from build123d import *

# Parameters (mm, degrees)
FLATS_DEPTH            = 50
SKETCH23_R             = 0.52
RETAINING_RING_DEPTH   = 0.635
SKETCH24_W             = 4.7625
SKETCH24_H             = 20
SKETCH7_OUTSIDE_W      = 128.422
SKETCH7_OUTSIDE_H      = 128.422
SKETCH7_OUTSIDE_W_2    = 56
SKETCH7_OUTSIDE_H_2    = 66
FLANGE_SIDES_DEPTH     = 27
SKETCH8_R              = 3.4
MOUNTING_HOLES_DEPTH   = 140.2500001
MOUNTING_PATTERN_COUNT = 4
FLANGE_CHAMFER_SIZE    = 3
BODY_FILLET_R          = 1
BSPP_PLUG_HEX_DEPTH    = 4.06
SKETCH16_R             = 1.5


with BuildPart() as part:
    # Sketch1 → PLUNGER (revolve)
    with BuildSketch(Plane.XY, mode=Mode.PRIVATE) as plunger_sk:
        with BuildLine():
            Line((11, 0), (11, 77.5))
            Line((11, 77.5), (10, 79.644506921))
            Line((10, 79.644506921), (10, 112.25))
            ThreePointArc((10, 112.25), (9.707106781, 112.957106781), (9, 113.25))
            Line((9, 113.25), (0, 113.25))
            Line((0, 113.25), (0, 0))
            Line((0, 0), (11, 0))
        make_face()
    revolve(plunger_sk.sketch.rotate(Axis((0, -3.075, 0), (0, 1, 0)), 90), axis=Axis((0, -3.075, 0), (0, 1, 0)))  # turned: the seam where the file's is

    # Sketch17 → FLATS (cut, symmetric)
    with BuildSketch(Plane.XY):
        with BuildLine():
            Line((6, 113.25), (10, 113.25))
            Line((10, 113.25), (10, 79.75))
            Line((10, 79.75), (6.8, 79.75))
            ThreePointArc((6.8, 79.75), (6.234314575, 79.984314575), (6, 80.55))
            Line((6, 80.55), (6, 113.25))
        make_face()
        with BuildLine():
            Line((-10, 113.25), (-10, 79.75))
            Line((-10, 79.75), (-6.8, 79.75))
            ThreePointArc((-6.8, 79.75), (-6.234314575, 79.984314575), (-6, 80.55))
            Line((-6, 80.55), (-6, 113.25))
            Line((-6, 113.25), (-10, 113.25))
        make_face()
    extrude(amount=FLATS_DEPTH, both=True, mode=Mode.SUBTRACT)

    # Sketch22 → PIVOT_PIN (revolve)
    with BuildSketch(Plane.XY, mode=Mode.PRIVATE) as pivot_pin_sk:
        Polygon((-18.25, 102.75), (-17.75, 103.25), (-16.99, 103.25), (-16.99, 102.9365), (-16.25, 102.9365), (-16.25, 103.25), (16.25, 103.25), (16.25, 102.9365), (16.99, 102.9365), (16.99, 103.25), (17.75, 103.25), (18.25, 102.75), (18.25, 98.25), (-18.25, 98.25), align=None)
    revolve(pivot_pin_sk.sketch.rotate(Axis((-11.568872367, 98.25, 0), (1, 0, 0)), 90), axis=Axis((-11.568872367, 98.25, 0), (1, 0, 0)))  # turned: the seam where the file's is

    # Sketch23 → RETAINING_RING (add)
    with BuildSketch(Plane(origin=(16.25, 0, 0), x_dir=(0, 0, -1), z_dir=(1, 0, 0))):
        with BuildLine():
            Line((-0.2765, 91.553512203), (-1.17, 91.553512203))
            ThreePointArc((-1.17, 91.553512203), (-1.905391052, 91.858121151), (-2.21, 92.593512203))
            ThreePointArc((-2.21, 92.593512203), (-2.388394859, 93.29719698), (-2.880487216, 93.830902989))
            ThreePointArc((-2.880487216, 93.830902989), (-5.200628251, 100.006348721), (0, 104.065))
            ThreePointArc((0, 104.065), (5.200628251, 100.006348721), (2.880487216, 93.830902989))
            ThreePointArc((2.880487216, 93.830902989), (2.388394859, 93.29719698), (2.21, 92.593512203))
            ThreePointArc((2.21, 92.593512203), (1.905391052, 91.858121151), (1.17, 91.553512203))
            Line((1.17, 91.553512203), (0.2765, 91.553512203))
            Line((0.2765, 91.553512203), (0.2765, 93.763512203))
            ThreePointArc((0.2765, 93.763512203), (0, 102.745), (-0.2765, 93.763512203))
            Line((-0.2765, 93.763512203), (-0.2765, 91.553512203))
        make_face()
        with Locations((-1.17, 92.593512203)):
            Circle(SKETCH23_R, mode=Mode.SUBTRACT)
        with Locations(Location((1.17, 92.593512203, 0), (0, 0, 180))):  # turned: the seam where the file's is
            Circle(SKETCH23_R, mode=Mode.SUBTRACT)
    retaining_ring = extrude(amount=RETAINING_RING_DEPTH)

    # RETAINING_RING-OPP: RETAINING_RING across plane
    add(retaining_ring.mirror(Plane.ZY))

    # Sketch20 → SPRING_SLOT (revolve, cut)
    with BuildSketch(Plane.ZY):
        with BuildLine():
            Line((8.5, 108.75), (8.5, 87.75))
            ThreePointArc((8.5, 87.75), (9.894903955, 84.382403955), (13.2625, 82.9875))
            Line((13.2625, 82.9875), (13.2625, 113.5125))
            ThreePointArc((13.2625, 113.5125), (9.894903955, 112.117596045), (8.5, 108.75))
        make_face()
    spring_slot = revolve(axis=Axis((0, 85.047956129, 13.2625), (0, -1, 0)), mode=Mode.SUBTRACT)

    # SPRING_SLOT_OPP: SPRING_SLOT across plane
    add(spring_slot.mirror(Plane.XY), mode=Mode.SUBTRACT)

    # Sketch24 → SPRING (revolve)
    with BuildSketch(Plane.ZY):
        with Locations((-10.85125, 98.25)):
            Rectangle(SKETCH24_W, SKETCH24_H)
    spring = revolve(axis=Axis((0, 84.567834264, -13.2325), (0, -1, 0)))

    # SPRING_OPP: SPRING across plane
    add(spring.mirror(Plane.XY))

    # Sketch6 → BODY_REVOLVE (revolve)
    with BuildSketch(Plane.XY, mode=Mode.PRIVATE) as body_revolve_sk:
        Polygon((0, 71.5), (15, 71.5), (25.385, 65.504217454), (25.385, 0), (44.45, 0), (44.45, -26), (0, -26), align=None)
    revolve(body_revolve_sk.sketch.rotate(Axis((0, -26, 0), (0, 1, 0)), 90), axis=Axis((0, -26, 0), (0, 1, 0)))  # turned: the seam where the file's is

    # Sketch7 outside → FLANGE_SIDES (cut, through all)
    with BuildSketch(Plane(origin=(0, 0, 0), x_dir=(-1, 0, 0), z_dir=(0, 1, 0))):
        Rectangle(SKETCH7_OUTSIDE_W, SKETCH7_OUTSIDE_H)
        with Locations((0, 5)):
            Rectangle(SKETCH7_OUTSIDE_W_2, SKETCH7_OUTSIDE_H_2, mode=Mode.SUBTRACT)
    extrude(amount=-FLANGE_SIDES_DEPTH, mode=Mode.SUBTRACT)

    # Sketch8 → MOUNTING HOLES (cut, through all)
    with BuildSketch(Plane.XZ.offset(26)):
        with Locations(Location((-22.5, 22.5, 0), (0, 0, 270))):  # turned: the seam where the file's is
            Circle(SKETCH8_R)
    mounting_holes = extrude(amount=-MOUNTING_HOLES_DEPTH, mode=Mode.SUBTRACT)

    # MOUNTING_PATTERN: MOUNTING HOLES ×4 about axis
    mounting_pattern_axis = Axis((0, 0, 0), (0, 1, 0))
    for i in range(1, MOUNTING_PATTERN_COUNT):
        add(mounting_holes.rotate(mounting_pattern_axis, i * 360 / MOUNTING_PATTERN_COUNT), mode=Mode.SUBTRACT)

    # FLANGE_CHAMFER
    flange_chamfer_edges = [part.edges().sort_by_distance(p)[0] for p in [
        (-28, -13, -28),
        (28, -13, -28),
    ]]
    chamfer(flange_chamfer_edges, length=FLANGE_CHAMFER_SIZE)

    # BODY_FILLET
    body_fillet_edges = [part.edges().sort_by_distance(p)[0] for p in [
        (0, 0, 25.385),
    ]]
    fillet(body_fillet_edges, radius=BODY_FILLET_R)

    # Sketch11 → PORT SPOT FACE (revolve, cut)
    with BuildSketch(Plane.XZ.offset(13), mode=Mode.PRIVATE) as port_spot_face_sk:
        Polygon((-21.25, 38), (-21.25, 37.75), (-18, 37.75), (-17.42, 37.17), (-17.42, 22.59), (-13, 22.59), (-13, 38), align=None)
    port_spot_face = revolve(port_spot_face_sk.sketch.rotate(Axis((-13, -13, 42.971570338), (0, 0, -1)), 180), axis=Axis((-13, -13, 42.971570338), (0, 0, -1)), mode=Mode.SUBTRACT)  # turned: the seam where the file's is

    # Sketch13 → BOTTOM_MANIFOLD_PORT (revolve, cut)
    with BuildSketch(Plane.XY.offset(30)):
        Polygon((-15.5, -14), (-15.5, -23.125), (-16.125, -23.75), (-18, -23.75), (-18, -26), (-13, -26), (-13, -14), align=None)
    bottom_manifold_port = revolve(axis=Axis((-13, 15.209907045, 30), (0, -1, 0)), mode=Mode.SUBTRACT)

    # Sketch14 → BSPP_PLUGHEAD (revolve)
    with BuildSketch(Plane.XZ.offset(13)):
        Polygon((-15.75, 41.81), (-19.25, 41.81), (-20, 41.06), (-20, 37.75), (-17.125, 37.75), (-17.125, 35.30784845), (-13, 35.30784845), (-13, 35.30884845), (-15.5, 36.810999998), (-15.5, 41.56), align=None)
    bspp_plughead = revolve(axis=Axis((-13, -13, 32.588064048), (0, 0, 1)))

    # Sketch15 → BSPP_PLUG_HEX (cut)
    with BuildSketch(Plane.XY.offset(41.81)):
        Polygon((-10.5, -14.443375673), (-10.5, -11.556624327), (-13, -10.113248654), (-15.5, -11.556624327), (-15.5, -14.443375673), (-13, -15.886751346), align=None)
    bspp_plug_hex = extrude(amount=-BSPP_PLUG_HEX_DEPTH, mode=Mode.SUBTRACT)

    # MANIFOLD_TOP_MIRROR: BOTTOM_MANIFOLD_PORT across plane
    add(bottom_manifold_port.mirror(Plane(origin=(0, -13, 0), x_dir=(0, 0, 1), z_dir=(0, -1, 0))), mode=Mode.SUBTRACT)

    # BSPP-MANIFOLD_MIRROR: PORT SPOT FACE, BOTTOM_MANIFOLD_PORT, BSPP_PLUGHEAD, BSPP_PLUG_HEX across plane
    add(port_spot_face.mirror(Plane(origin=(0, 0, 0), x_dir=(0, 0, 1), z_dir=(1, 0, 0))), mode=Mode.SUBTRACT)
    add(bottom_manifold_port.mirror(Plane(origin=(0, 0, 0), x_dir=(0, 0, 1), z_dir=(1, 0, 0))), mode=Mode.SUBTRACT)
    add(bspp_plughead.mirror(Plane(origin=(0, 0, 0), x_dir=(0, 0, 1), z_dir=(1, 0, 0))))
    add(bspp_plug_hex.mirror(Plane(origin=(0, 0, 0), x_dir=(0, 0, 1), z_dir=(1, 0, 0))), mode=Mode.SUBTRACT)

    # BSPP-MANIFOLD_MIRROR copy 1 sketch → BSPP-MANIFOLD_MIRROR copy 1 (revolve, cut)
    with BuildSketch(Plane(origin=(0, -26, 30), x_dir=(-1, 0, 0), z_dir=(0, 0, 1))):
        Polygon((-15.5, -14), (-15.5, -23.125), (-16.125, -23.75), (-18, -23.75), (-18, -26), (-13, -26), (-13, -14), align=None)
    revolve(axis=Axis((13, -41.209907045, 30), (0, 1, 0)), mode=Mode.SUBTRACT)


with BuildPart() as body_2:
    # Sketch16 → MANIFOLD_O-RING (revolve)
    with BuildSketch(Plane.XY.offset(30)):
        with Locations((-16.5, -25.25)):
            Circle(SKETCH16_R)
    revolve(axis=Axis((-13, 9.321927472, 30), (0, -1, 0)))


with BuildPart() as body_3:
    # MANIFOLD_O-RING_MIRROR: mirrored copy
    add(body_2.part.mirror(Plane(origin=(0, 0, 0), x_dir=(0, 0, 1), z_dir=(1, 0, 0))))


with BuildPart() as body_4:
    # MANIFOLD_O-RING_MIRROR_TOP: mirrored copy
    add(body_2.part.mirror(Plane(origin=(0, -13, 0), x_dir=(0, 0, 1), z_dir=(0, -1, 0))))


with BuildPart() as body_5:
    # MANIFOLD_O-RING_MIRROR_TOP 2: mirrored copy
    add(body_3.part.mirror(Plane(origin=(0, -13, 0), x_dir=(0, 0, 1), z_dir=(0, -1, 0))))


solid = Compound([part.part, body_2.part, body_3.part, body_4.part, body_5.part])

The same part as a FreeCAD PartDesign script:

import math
import FreeCAD as App
import Part
import Sketcher
from FreeCAD import Vector
Q = App.Units.Quantity


def edges_at(feature, points):
    """Names of the edges that pass closest to the given points."""
    edges = feature.Shape.Edges
    near = lambda p: min(range(len(edges)), key=lambda i: edges[i].distToShape(Part.Vertex(*p))[0])
    return sorted({f"Edge{near(p) + 1}" for p in points})

doc = App.newDocument("Part")
body = doc.addObject("PartDesign::Body", "Body")

# Sketch on XY plane
sketch1 = doc.addObject("Sketcher::SketchObject", "Sketch")
body.addObject(sketch1)
sketch1.AttachmentSupport = (doc.XY_Plane, [""])
sketch1.MapMode = "FlatFace"
sketch1.addGeometry([
    Part.LineSegment(Vector(11, 0, 0), Vector(11, 77.5, 0)),  # 0
    Part.LineSegment(Vector(11, 77.5, 0), Vector(10, 79.644507, 0)),  # 1
    Part.LineSegment(Vector(10, 79.644507, 0), Vector(10, 112.25, 0)),  # 2
    Part.ArcOfCircle(Part.Circle(Vector(9, 112.25, 0), Vector(0, 0, 1), 1), math.radians(0), math.radians(90)),  # 3
    Part.LineSegment(Vector(9, 113.25, 0), Vector(0, 113.25, 0)),  # 4
    Part.LineSegment(Vector(0, 113.25, 0), Vector(0, 0, 0)),  # 5
    Part.LineSegment(Vector(0, 0, 0), Vector(11, 0, 0)),  # 6
], False)
sketch1.addConstraint([
    Sketcher.Constraint("Coincident", 0, 2, 1, 1),
    Sketcher.Constraint("Coincident", 1, 2, 2, 1),
    Sketcher.Constraint("Tangent", 2, 2, 3, 1),
    Sketcher.Constraint("Tangent", 3, 2, 4, 1),
    Sketcher.Constraint("Coincident", 4, 2, 5, 1),
    Sketcher.Constraint("Coincident", 5, 2, 6, 1),
    Sketcher.Constraint("Coincident", 6, 2, 0, 1),
    Sketcher.Constraint("Vertical", 0),
    Sketcher.Constraint("Vertical", 2),
    Sketcher.Constraint("Horizontal", 4),
    Sketcher.Constraint("Vertical", 5),
    Sketcher.Constraint("Horizontal", 6),
    Sketcher.Constraint("Coincident", 5, 2, -1, 1),
    Sketcher.Constraint("Radius", 3, 1.0),
    Sketcher.Constraint("DistanceX", 4, 2, 4, 1, 9.0),
    Sketcher.Constraint("DistanceX", 6, 1, 6, 2, 11.0),
    Sketcher.Constraint("Angle", 1, Q("115 deg")),
    Sketcher.Constraint("DistanceY", 0, 1, 0, 2, 77.5),
    Sketcher.Constraint("DistanceY", 5, 2, 5, 1, 113.25),
])
revolution = doc.addObject("PartDesign::Revolution", "Revolution")
body.addObject(revolution)
revolution.Profile = sketch1
revolution.ReferenceAxis = (sketch1, ["V_Axis"])
revolution.Angle = 360

# Sketch on XY plane
sketch2 = doc.addObject("Sketcher::SketchObject", "Sketch001")
body.addObject(sketch2)
sketch2.AttachmentSupport = (doc.XY_Plane, [""])
sketch2.MapMode = "FlatFace"
sketch2.addGeometry([
    Part.LineSegment(Vector(10, 113.25, 0), Vector(6, 113.25, 0)),  # 0
    Part.LineSegment(Vector(6, 113.25, 0), Vector(6, 80.55, 0)),  # 1
    Part.ArcOfCircle(Part.Circle(Vector(6.8, 80.55, 0), Vector(0, 0, 1), 0.8), math.radians(180), math.radians(270)),  # 2
    Part.LineSegment(Vector(6.8, 79.75, 0), Vector(10, 79.75, 0)),  # 3
    Part.LineSegment(Vector(10, 79.75, 0), Vector(10, 113.25, 0)),  # 4
    Part.LineSegment(Vector(-10, 113.25, 0), Vector(-10, 79.75, 0)),  # 5
    Part.LineSegment(Vector(-10, 79.75, 0), Vector(-6.8, 79.75, 0)),  # 6
    Part.ArcOfCircle(Part.Circle(Vector(-6.8, 80.55, 0), Vector(0, 0, 1), 0.8), math.radians(-90), math.radians(0)),  # 7
    Part.LineSegment(Vector(-6, 80.55, 0), Vector(-6, 113.25, 0)),  # 8
    Part.LineSegment(Vector(-6, 113.25, 0), Vector(-10, 113.25, 0)),  # 9
], False)
sketch2.addConstraint([
    Sketcher.Constraint("Coincident", 0, 2, 1, 1),
    Sketcher.Constraint("Tangent", 1, 2, 2, 1),
    Sketcher.Constraint("Tangent", 2, 2, 3, 1),
    Sketcher.Constraint("Coincident", 3, 2, 4, 1),
    Sketcher.Constraint("Coincident", 4, 2, 0, 1),
    Sketcher.Constraint("Coincident", 5, 2, 6, 1),
    Sketcher.Constraint("Tangent", 6, 2, 7, 1),
    Sketcher.Constraint("Tangent", 7, 2, 8, 1),
    Sketcher.Constraint("Coincident", 8, 2, 9, 1),
    Sketcher.Constraint("Coincident", 9, 2, 5, 1),
    Sketcher.Constraint("Horizontal", 0),
    Sketcher.Constraint("Vertical", 1),
    Sketcher.Constraint("Horizontal", 3),
    Sketcher.Constraint("Vertical", 4),
    Sketcher.Constraint("Vertical", 5),
    Sketcher.Constraint("Horizontal", 6),
    Sketcher.Constraint("Vertical", 8),
    Sketcher.Constraint("Horizontal", 9),
    Sketcher.Constraint("Equal", 2, 7),
    Sketcher.Constraint("Symmetric", 2, 3, 7, 3, -2),
    Sketcher.Constraint("Symmetric", 4, 2, 9, 2, -2),
    Sketcher.Constraint("Radius", 2, 0.8),
    Sketcher.Constraint("DistanceX", 0, 2, 0, 1, 4.0),
    Sketcher.Constraint("DistanceY", 1, 2, 1, 1, 32.7),
    Sketcher.Constraint("DistanceX", -1, 1, 0, 2, 6.0),
    Sketcher.Constraint("DistanceY", -1, 1, 2, 3, 80.55),
])
pocket1 = doc.addObject("PartDesign::Pocket", "Pocket")
body.addObject(pocket1)
pocket1.Profile = sketch2
pocket1.Length = 100
pocket1.Midplane = True

# Sketch on XY plane
sketch3 = doc.addObject("Sketcher::SketchObject", "Sketch002")
body.addObject(sketch3)
sketch3.AttachmentSupport = (doc.XY_Plane, [""])
sketch3.MapMode = "FlatFace"
sketch3.addGeometry([
    Part.LineSegment(Vector(-17.75, 103.25, 0), Vector(-18.25, 102.75, 0)),  # 0
    Part.LineSegment(Vector(-18.25, 102.75, 0), Vector(-18.25, 98.25, 0)),  # 1
    Part.LineSegment(Vector(-18.25, 98.25, 0), Vector(18.25, 98.25, 0)),  # 2
    Part.LineSegment(Vector(18.25, 98.25, 0), Vector(18.25, 102.75, 0)),  # 3
    Part.LineSegment(Vector(18.25, 102.75, 0), Vector(17.75, 103.25, 0)),  # 4
    Part.LineSegment(Vector(17.75, 103.25, 0), Vector(16.99, 103.25, 0)),  # 5
    Part.LineSegment(Vector(16.99, 103.25, 0), Vector(16.99, 102.9365, 0)),  # 6
    Part.LineSegment(Vector(16.99, 102.9365, 0), Vector(16.25, 102.9365, 0)),  # 7
    Part.LineSegment(Vector(16.25, 102.9365, 0), Vector(16.25, 103.25, 0)),  # 8
    Part.LineSegment(Vector(16.25, 103.25, 0), Vector(-16.25, 103.25, 0)),  # 9
    Part.LineSegment(Vector(-16.25, 103.25, 0), Vector(-16.25, 102.9365, 0)),  # 10
    Part.LineSegment(Vector(-16.25, 102.9365, 0), Vector(-16.99, 102.9365, 0)),  # 11
    Part.LineSegment(Vector(-16.99, 102.9365, 0), Vector(-16.99, 103.25, 0)),  # 12
    Part.LineSegment(Vector(-16.99, 103.25, 0), Vector(-17.75, 103.25, 0)),  # 13
], False)
sketch3.addGeometry(Part.LineSegment(Vector(-18.25, 98.25, 0), Vector(18.25, 98.25, 0)), True)  # axis
sketch3.addConstraint([
    Sketcher.Constraint("Coincident", 0, 2, 1, 1),
    Sketcher.Constraint("Coincident", 1, 2, 2, 1),
    Sketcher.Constraint("Coincident", 2, 2, 3, 1),
    Sketcher.Constraint("Coincident", 3, 2, 4, 1),
    Sketcher.Constraint("Coincident", 4, 2, 5, 1),
    Sketcher.Constraint("Coincident", 5, 2, 6, 1),
    Sketcher.Constraint("Coincident", 6, 2, 7, 1),
    Sketcher.Constraint("Coincident", 7, 2, 8, 1),
    Sketcher.Constraint("Coincident", 8, 2, 9, 1),
    Sketcher.Constraint("Coincident", 9, 2, 10, 1),
    Sketcher.Constraint("Coincident", 10, 2, 11, 1),
    Sketcher.Constraint("Coincident", 11, 2, 12, 1),
    Sketcher.Constraint("Coincident", 12, 2, 13, 1),
    Sketcher.Constraint("Coincident", 13, 2, 0, 1),
    Sketcher.Constraint("Vertical", 1),
    Sketcher.Constraint("Horizontal", 2),
    Sketcher.Constraint("Vertical", 3),
    Sketcher.Constraint("Horizontal", 5),
    Sketcher.Constraint("Vertical", 6),
    Sketcher.Constraint("Horizontal", 7),
    Sketcher.Constraint("Vertical", 8),
    Sketcher.Constraint("Horizontal", 9),
    Sketcher.Constraint("Vertical", 10),
    Sketcher.Constraint("Horizontal", 11),
    Sketcher.Constraint("Vertical", 12),
    Sketcher.Constraint("Horizontal", 13),
    Sketcher.Constraint("Horizontal", 14),
    Sketcher.Constraint("Coincident", 14, 1, 1, 2),
    Sketcher.Constraint("Symmetric", 0, 2, 3, 2, -2),
    Sketcher.Constraint("Symmetric", 7, 2, 10, 2, -2),
    Sketcher.Constraint("Symmetric", 5, 2, 12, 2, -2),
    Sketcher.Constraint("Perpendicular", 0, 4),
    Sketcher.Constraint("Horizontal", 5, 2, 8, 2),
    Sketcher.Constraint("Vertical", 3, 2, 14, 2),
    Sketcher.Constraint("Equal", 5, 13),
    Sketcher.Constraint("DistanceX", 2, 1, 2, 2, 36.5),
    Sketcher.Constraint("DistanceX", 9, 2, 9, 1, 32.5),
    Sketcher.Constraint("DistanceY", 1, 2, 1, 1, 4.5),
    Sketcher.Constraint("DistanceY", 2, 2, 4, 2, 5.0),
    Sketcher.Constraint("DistanceX", 5, 2, 5, 1, 0.76),
    Sketcher.Constraint("DistanceY", -1, 1, 0, 2, 102.75),
    Sketcher.Constraint("DistanceY", 6, 2, 6, 1, 0.3135),
])
revolution2 = doc.addObject("PartDesign::Revolution", "Revolution001")
body.addObject(revolution2)
revolution2.Profile = sketch3
revolution2.ReferenceAxis = (sketch3, ["Axis0"])
revolution2.Angle = 360

# Sketch on YZ plane
sketch4 = doc.addObject("Sketcher::SketchObject", "Sketch003")
body.addObject(sketch4)
sketch4.AttachmentSupport = (doc.YZ_Plane, [""])
sketch4.MapMode = "FlatFace"
sketch4.AttachmentOffset = App.Placement(Vector(0, 0, 16.25), App.Rotation())
sketch4.addGeometry([
    Part.LineSegment(Vector(91.553512, 1.17, 0), Vector(91.553512, 0.2765, 0)),  # 0
    Part.LineSegment(Vector(91.553512, 0.2765, 0), Vector(93.763512, 0.2765, 0)),  # 1
    Part.ArcOfCircle(Part.Circle(Vector(98.25, 0, 0), Vector(0, 0, 1), 4.495), math.radians(-176.47335), math.radians(176.47335)),  # 2
    Part.LineSegment(Vector(93.763512, -0.2765, 0), Vector(91.553512, -0.2765, 0)),  # 3
    Part.LineSegment(Vector(91.553512, -0.2765, 0), Vector(91.553512, -1.17, 0)),  # 4
    Part.ArcOfCircle(Part.Circle(Vector(92.593512, -1.17, 0), Vector(0, 0, 1), 1.04), math.radians(-180), math.radians(-90)),  # 5
    Part.ArcOfCircle(Part.Circle(Vector(92.593512, -3.687052, 0), Vector(0, 0, 1), 1.477052), math.radians(33.097399), math.radians(90)),  # 6
    Part.ArcOfCircle(Part.Circle(Vector(98.497224, 0.161147, 0), Vector(0, 0, 1), 5.570107), math.radians(-146.902601), math.radians(-1.657842)),  # 7
    Part.ArcOfCircle(Part.Circle(Vector(98.497224, -0.161147, 0), Vector(0, 0, 1), 5.570107), math.radians(1.657842), math.radians(146.902601)),  # 8
    Part.ArcOfCircle(Part.Circle(Vector(92.593512, 3.687052, 0), Vector(0, 0, 1), 1.477052), math.radians(-90), math.radians(-33.097399)),  # 9
    Part.ArcOfCircle(Part.Circle(Vector(92.593512, 1.17, 0), Vector(0, 0, 1), 1.04), math.radians(90), math.radians(180)),  # 10
    Part.Circle(Vector(92.593512, -1.17, 0), Vector(0, 0, 1), 0.52),  # 11
    Part.Circle(Vector(92.593512, 1.17, 0), Vector(0, 0, 1), 0.52),  # 12
], False)
sketch4.addConstraint([
    Sketcher.Constraint("Coincident", 0, 2, 1, 1),
    Sketcher.Constraint("Coincident", 1, 2, 2, 2),
    Sketcher.Constraint("Coincident", 2, 1, 3, 1),
    Sketcher.Constraint("Coincident", 3, 2, 4, 1),
    Sketcher.Constraint("Tangent", 4, 2, 5, 1),
    Sketcher.Constraint("Tangent", 5, 2, 6, 2),
    Sketcher.Constraint("Tangent", 6, 1, 7, 1),
    Sketcher.Constraint("Coincident", 7, 2, 8, 1),
    Sketcher.Constraint("Tangent", 8, 2, 9, 2),
    Sketcher.Constraint("Tangent", 9, 1, 10, 1),
    Sketcher.Constraint("Tangent", 10, 2, 0, 1),
    Sketcher.Constraint("Vertical", 0),
    Sketcher.Constraint("Horizontal", 1),
    Sketcher.Constraint("Horizontal", 3),
    Sketcher.Constraint("Vertical", 4),
    Sketcher.Constraint("Coincident", 11, 3, 5, 3),
    Sketcher.Constraint("Coincident", 12, 3, 10, 3),
    Sketcher.Constraint("Equal", 7, 8),
    Sketcher.Constraint("Equal", 6, 9),
    Sketcher.Constraint("Equal", 5, 10),
    Sketcher.Constraint("Equal", 11, 12),
    Sketcher.Constraint("Symmetric", 7, 3, 8, 3, -1),
    Sketcher.Constraint("Symmetric", 5, 3, 10, 3, -1),
    Sketcher.Constraint("Symmetric", 1, 2, 2, 1, -1),
    Sketcher.Constraint("Vertical", 5, 3, 6, 3),
    Sketcher.Constraint("Diameter", 11, 1.04),
    Sketcher.Constraint("Radius", 5, 1.04),
    Sketcher.Constraint("Radius", 2, 4.495),
    Sketcher.Constraint("DistanceX", 1, 1, 1, 2, 2.21),
    Sketcher.Constraint("DistanceX", -1, 1, 2, 3, 98.25),
    Sketcher.Constraint("DistanceY", 5, 3, -1, 1, 1.17),
    Sketcher.Constraint("DistanceY", 0, 2, 0, 1, 0.8935),
    Sketcher.Constraint("DistanceX", -1, 1, 7, 2, 104.065),
    Sketcher.Constraint("Radius", 6, 1.477052),
    Sketcher.Constraint("Radius", 7, 5.570107),
])
pad1 = doc.addObject("PartDesign::Pad", "Pad")
body.addObject(pad1)
pad1.Profile = sketch4
pad1.Length = 0.635
doc.recompute()

mirrored = doc.addObject("PartDesign::Mirrored", "Mirrored")
body.addObject(mirrored)
mirrored.Originals = [pad1]
mirrored.MirrorPlane = (doc.YZ_Plane, [""])
body.Tip = mirrored

# Sketch on YZ plane
sketch5 = doc.addObject("Sketcher::SketchObject", "Sketch004")
body.addObject(sketch5)
sketch5.AttachmentSupport = (doc.YZ_Plane, [""])
sketch5.MapMode = "FlatFace"
sketch5.addGeometry([
    Part.LineSegment(Vector(108.75, 8.5, 0), Vector(87.75, 8.5, 0)),
    Part.ArcOfCircle(Part.Circle(Vector(87.75, 13.2625, 0), Vector(0, 0, 1), 4.7625), math.radians(-180), math.radians(-90)),
    Part.LineSegment(Vector(82.9875, 13.2625, 0), Vector(113.5125, 13.2625, 0)),
    Part.ArcOfCircle(Part.Circle(Vector(108.75, 13.2625, 0), Vector(0, 0, 1), 4.7625), math.radians(-90), math.radians(0)),
], False)
sketch5.addGeometry(Part.LineSegment(Vector(113.5125, 13.2625, 0), Vector(82.9875, 13.2625, 0)), True)  # axis
sketch5.addConstraint([
    Sketcher.Constraint("Tangent", 0, 2, 1, 2),
    Sketcher.Constraint("Coincident", 1, 1, 2, 1),
    Sketcher.Constraint("Coincident", 2, 2, 3, 2),
    Sketcher.Constraint("Tangent", 3, 1, 0, 1),
    Sketcher.Constraint("Horizontal", 0),
    Sketcher.Constraint("Horizontal", 2),
    Sketcher.Constraint("Horizontal", 4),
    Sketcher.Constraint("Coincident", 4, 1, 2, 2),
    Sketcher.Constraint("Equal", 1, 3),
    Sketcher.Constraint("Horizontal", 3, 3, 1, 1),
    Sketcher.Constraint("Equal", 2, 4),
    Sketcher.Constraint("DistanceX", 0, 2, 0, 1, 21.0),
    Sketcher.Constraint("DistanceY", -1, 1, 0, 2, 8.5),
    Sketcher.Constraint("Radius", 1, 4.7625),
    Sketcher.Constraint("DistanceX", -1, 1, 1, 3, 87.75),
])
groove = doc.addObject("PartDesign::Groove", "Groove")
body.addObject(groove)
groove.Profile = sketch5
groove.ReferenceAxis = (sketch5, ["Axis0"])
groove.Angle = 360
doc.recompute()

mirrored2 = doc.addObject("PartDesign::Mirrored", "Mirrored001")
body.addObject(mirrored2)
mirrored2.Originals = [groove]
mirrored2.MirrorPlane = (doc.XY_Plane, [""])
body.Tip = mirrored2

# Sketch on YZ plane
sketch6 = doc.addObject("Sketcher::SketchObject", "Sketch005")
body.addObject(sketch6)
sketch6.AttachmentSupport = (doc.YZ_Plane, [""])
sketch6.MapMode = "FlatFace"
sketch6.addGeometry([
    Part.LineSegment(Vector(108.25, -13.2325, 0), Vector(88.25, -13.2325, 0)),
    Part.LineSegment(Vector(88.25, -13.2325, 0), Vector(88.25, -8.47, 0)),
    Part.LineSegment(Vector(88.25, -8.47, 0), Vector(108.25, -8.47, 0)),
    Part.LineSegment(Vector(108.25, -8.47, 0), Vector(108.25, -13.2325, 0)),
], False)
sketch6.addGeometry(Part.LineSegment(Vector(108.25, -13.2325, 0), Vector(88.25, -13.2325, 0)), True)  # axis
sketch6.addConstraint([
    Sketcher.Constraint("Coincident", 0, 2, 1, 1),
    Sketcher.Constraint("Coincident", 1, 2, 2, 1),
    Sketcher.Constraint("Coincident", 2, 2, 3, 1),
    Sketcher.Constraint("Coincident", 3, 2, 0, 1),
    Sketcher.Constraint("Horizontal", 0),
    Sketcher.Constraint("Vertical", 1),
    Sketcher.Constraint("Horizontal", 2),
    Sketcher.Constraint("Vertical", 3),
    Sketcher.Constraint("Horizontal", 4),
    Sketcher.Constraint("Coincident", 4, 1, 3, 2),
    Sketcher.Constraint("Vertical", 1, 2, 4, 2),
    Sketcher.Constraint("DistanceX", 0, 2, 0, 1, 20.0),
    Sketcher.Constraint("DistanceX", -1, 1, 0, 2, 88.25),
    Sketcher.Constraint("DistanceY", 1, 2, -1, 1, 8.47),
    Sketcher.Constraint("DistanceY", 1, 1, 1, 2, 4.7625),
])
revolution3 = doc.addObject("PartDesign::Revolution", "Revolution002")
body.addObject(revolution3)
revolution3.Profile = sketch6
revolution3.ReferenceAxis = (sketch6, ["Axis0"])
revolution3.Angle = 360
doc.recompute()

mirrored3 = doc.addObject("PartDesign::Mirrored", "Mirrored002")
body.addObject(mirrored3)
mirrored3.Originals = [revolution3]
mirrored3.MirrorPlane = (doc.XY_Plane, [""])
body.Tip = mirrored3

# Sketch on XY plane
sketch7 = doc.addObject("Sketcher::SketchObject", "Sketch006")
body.addObject(sketch7)
sketch7.AttachmentSupport = (doc.XY_Plane, [""])
sketch7.MapMode = "FlatFace"
sketch7.addGeometry([
    Part.LineSegment(Vector(15, 71.5, 0), Vector(0, 71.5, 0)),  # 0
    Part.LineSegment(Vector(0, 71.5, 0), Vector(0, -26, 0)),  # 1
    Part.LineSegment(Vector(0, -26, 0), Vector(44.45, -26, 0)),  # 2
    Part.LineSegment(Vector(44.45, -26, 0), Vector(44.45, 0, 0)),  # 3
    Part.LineSegment(Vector(44.45, 0, 0), Vector(25.385, 0, 0)),  # 4
    Part.LineSegment(Vector(25.385, 0, 0), Vector(25.385, 65.504217, 0)),  # 5
    Part.LineSegment(Vector(25.385, 65.504217, 0), Vector(15, 71.5, 0)),  # 6
], False)
sketch7.addConstraint([
    Sketcher.Constraint("Coincident", 0, 2, 1, 1),
    Sketcher.Constraint("Coincident", 1, 2, 2, 1),
    Sketcher.Constraint("Coincident", 2, 2, 3, 1),
    Sketcher.Constraint("Coincident", 3, 2, 4, 1),
    Sketcher.Constraint("Coincident", 4, 2, 5, 1),
    Sketcher.Constraint("Coincident", 5, 2, 6, 1),
    Sketcher.Constraint("Coincident", 6, 2, 0, 1),
    Sketcher.Constraint("Horizontal", 0),
    Sketcher.Constraint("Vertical", 1),
    Sketcher.Constraint("Horizontal", 2),
    Sketcher.Constraint("Vertical", 3),
    Sketcher.Constraint("Horizontal", 4),
    Sketcher.Constraint("Vertical", 5),
    Sketcher.Constraint("PointOnObject", 0, 2, -2),
    Sketcher.Constraint("PointOnObject", 3, 2, -1),
    Sketcher.Constraint("DistanceX", 0, 2, 0, 1, 15.0),
    Sketcher.Constraint("DistanceY", 3, 1, 3, 2, 26.0),
    Sketcher.Constraint("Angle", 6, Q("150 deg")),
    Sketcher.Constraint("DistanceY", 1, 2, 1, 1, 97.5),
    Sketcher.Constraint("DistanceX", 2, 1, 2, 2, 44.45),
    Sketcher.Constraint("DistanceX", 4, 2, 4, 1, 19.065),
])
revolution4 = doc.addObject("PartDesign::Revolution", "Revolution003")
body.addObject(revolution4)
revolution4.Profile = sketch7
revolution4.ReferenceAxis = (sketch7, ["V_Axis"])
revolution4.Angle = 360

# Sketch on XZ plane
sketch8 = doc.addObject("Sketcher::SketchObject", "Sketch007")
body.addObject(sketch8)
sketch8.AttachmentSupport = (doc.XZ_Plane, [""])
sketch8.MapMode = "FlatFace"
sketch8.addGeometry([
    Part.LineSegment(Vector(64.211, 64.211, 0), Vector(64.211, -64.211, 0)),  # 0
    Part.LineSegment(Vector(64.211, -64.211, 0), Vector(-64.211, -64.211, 0)),  # 1
    Part.LineSegment(Vector(-64.211, -64.211, 0), Vector(-64.211, 64.211, 0)),  # 2
    Part.LineSegment(Vector(-64.211, 64.211, 0), Vector(64.211, 64.211, 0)),  # 3
    Part.LineSegment(Vector(-28, -28, 0), Vector(28, -28, 0)),  # 4
    Part.LineSegment(Vector(28, -28, 0), Vector(28, 38, 0)),  # 5
    Part.LineSegment(Vector(28, 38, 0), Vector(-28, 38, 0)),  # 6
    Part.LineSegment(Vector(-28, 38, 0), Vector(-28, -28, 0)),  # 7
], False)
sketch8.addConstraint([
    Sketcher.Constraint("Coincident", 0, 2, 1, 1),
    Sketcher.Constraint("Coincident", 1, 2, 2, 1),
    Sketcher.Constraint("Coincident", 2, 2, 3, 1),
    Sketcher.Constraint("Coincident", 3, 2, 0, 1),
    Sketcher.Constraint("Coincident", 4, 2, 5, 1),
    Sketcher.Constraint("Coincident", 5, 2, 6, 1),
    Sketcher.Constraint("Coincident", 6, 2, 7, 1),
    Sketcher.Constraint("Coincident", 7, 2, 4, 1),
    Sketcher.Constraint("Vertical", 0),
    Sketcher.Constraint("Horizontal", 1),
    Sketcher.Constraint("Vertical", 2),
    Sketcher.Constraint("Horizontal", 3),
    Sketcher.Constraint("Horizontal", 4),
    Sketcher.Constraint("Vertical", 5),
    Sketcher.Constraint("Horizontal", 6),
    Sketcher.Constraint("Vertical", 7),
    Sketcher.Constraint("Symmetric", 0, 2, 2, 2, -1, 1),
    Sketcher.Constraint("Equal", 3, 0),
    Sketcher.Constraint("DistanceX", 4, 1, 4, 2, 56.0),
    Sketcher.Constraint("DistanceY", 5, 1, 5, 2, 66.0),
    Sketcher.Constraint("DistanceX", -1, 1, 4, 2, 28.0),
    Sketcher.Constraint("DistanceY", 4, 2, -1, 1, 28.0),
    Sketcher.Constraint("DistanceX", 1, 2, 1, 1, 128.422),
])
pocket2 = doc.addObject("PartDesign::Pocket", "Pocket001")
body.addObject(pocket2)
pocket2.Profile = sketch8
pocket2.Type = "ThroughAll"
pocket2.Reversed = True

# Sketch on XZ plane
sketch9 = doc.addObject("Sketcher::SketchObject", "Sketch008")
body.addObject(sketch9)
sketch9.AttachmentSupport = (doc.XZ_Plane, [""])
sketch9.MapMode = "FlatFace"
sketch9.AttachmentOffset = App.Placement(Vector(0, 0, 26), App.Rotation())
sketch9.addGeometry(Part.Circle(Vector(-22.5, 22.5, 0), Vector(0, 0, 1), 3.4), False)
sketch9.addConstraint([
    Sketcher.Constraint("Diameter", 0, 6.8),
    Sketcher.Constraint("DistanceX", 0, 3, -1, 1, 22.5),
    Sketcher.Constraint("DistanceY", -1, 1, 0, 3, 22.5),
])
pocket3 = doc.addObject("PartDesign::Pocket", "Pocket002")
body.addObject(pocket3)
pocket3.Profile = sketch9
pocket3.Type = "ThroughAll"
doc.recompute()

polarpattern = doc.addObject("PartDesign::PolarPattern", "PolarPattern")
body.addObject(polarpattern)
polarpattern.Originals = [pocket3]
polarpattern.Axis = (doc.Y_Axis, [""])
polarpattern.Angle = 360
polarpattern.Occurrences = 4
body.Tip = polarpattern
doc.recompute()

chamfer = doc.addObject("PartDesign::Chamfer", "Chamfer")
body.addObject(chamfer)
chamfer.Base = (polarpattern, edges_at(polarpattern, [(-28, -13, -28), (28, -13, -28)]))
chamfer.Size = 3
doc.recompute()

fillet = doc.addObject("PartDesign::Fillet", "Fillet")
body.addObject(fillet)
fillet.Base = (chamfer, edges_at(chamfer, [(0, 0, 25.385)]))
fillet.Radius = 1

# Sketch on XZ plane
sketch10 = doc.addObject("Sketcher::SketchObject", "Sketch009")
body.addObject(sketch10)
sketch10.AttachmentSupport = (doc.XZ_Plane, [""])
sketch10.MapMode = "FlatFace"
sketch10.AttachmentOffset = App.Placement(Vector(0, 0, 13), App.Rotation())
sketch10.addGeometry([
    Part.LineSegment(Vector(-21.25, 38, 0), Vector(-21.25, 37.75, 0)),  # 0
    Part.LineSegment(Vector(-21.25, 37.75, 0), Vector(-18, 37.75, 0)),  # 1
    Part.LineSegment(Vector(-18, 37.75, 0), Vector(-17.42, 37.17, 0)),  # 2
    Part.LineSegment(Vector(-17.42, 37.17, 0), Vector(-17.42, 22.59, 0)),  # 3
    Part.LineSegment(Vector(-17.42, 22.59, 0), Vector(-13, 22.59, 0)),  # 4
    Part.LineSegment(Vector(-13, 22.59, 0), Vector(-13, 38, 0)),  # 5
    Part.LineSegment(Vector(-13, 38, 0), Vector(-21.25, 38, 0)),  # 6
], False)
sketch10.addGeometry(Part.LineSegment(Vector(-13, 38, 0), Vector(-13, 22.59, 0)), True)  # axis
sketch10.addConstraint([
    Sketcher.Constraint("Coincident", 0, 2, 1, 1),
    Sketcher.Constraint("Coincident", 1, 2, 2, 1),
    Sketcher.Constraint("Coincident", 2, 2, 3, 1),
    Sketcher.Constraint("Coincident", 3, 2, 4, 1),
    Sketcher.Constraint("Coincident", 4, 2, 5, 1),
    Sketcher.Constraint("Coincident", 5, 2, 6, 1),
    Sketcher.Constraint("Coincident", 6, 2, 0, 1),
    Sketcher.Constraint("Vertical", 0),
    Sketcher.Constraint("Horizontal", 1),
    Sketcher.Constraint("Vertical", 3),
    Sketcher.Constraint("Horizontal", 4),
    Sketcher.Constraint("Vertical", 5),
    Sketcher.Constraint("Horizontal", 6),
    Sketcher.Constraint("Vertical", 7),
    Sketcher.Constraint("Coincident", 7, 1, 5, 2),
    Sketcher.Constraint("Horizontal", 3, 2, 7, 2),
    Sketcher.Constraint("Angle", 2, Q("-45 deg")),
    Sketcher.Constraint("DistanceX", 1, 2, -1, 1, 18.0),
    Sketcher.Constraint("DistanceX", 4, 2, -1, 1, 13.0),
    Sketcher.Constraint("DistanceY", -1, 1, 5, 2, 38.0),
    Sketcher.Constraint("DistanceX", 1, 1, 1, 2, 3.25),
    Sketcher.Constraint("DistanceX", 4, 1, 4, 2, 4.42),
    Sketcher.Constraint("DistanceY", 0, 2, 0, 1, 0.25),
    Sketcher.Constraint("DistanceY", 3, 2, 3, 1, 14.58),
])
groove2 = doc.addObject("PartDesign::Groove", "Groove001")
body.addObject(groove2)
groove2.Profile = sketch10
groove2.ReferenceAxis = (sketch10, ["Axis0"])
groove2.Angle = 360

# Sketch on XY plane
sketch11 = doc.addObject("Sketcher::SketchObject", "Sketch010")
body.addObject(sketch11)
sketch11.AttachmentSupport = (doc.XY_Plane, [""])
sketch11.MapMode = "FlatFace"
sketch11.AttachmentOffset = App.Placement(Vector(0, 0, 30), App.Rotation())
sketch11.addGeometry([
    Part.LineSegment(Vector(-15.5, -14, 0), Vector(-15.5, -23.125, 0)),  # 0
    Part.LineSegment(Vector(-15.5, -23.125, 0), Vector(-16.125, -23.75, 0)),  # 1
    Part.LineSegment(Vector(-16.125, -23.75, 0), Vector(-18, -23.75, 0)),  # 2
    Part.LineSegment(Vector(-18, -23.75, 0), Vector(-18, -26, 0)),  # 3
    Part.LineSegment(Vector(-18, -26, 0), Vector(-13, -26, 0)),  # 4
    Part.LineSegment(Vector(-13, -26, 0), Vector(-13, -14, 0)),  # 5
    Part.LineSegment(Vector(-13, -14, 0), Vector(-15.5, -14, 0)),  # 6
], False)
sketch11.addGeometry(Part.LineSegment(Vector(-13, -14, 0), Vector(-13, -26, 0)), True)  # axis
sketch11.addConstraint([
    Sketcher.Constraint("Coincident", 0, 2, 1, 1),
    Sketcher.Constraint("Coincident", 1, 2, 2, 1),
    Sketcher.Constraint("Coincident", 2, 2, 3, 1),
    Sketcher.Constraint("Coincident", 3, 2, 4, 1),
    Sketcher.Constraint("Coincident", 4, 2, 5, 1),
    Sketcher.Constraint("Coincident", 5, 2, 6, 1),
    Sketcher.Constraint("Coincident", 6, 2, 0, 1),
    Sketcher.Constraint("Vertical", 0),
    Sketcher.Constraint("Horizontal", 2),
    Sketcher.Constraint("Vertical", 3),
    Sketcher.Constraint("Horizontal", 4),
    Sketcher.Constraint("Vertical", 5),
    Sketcher.Constraint("Horizontal", 6),
    Sketcher.Constraint("Vertical", 7),
    Sketcher.Constraint("Coincident", 7, 1, 5, 2),
    Sketcher.Constraint("Horizontal", 3, 2, 7, 2),
    Sketcher.Constraint("DistanceX", 4, 1, 4, 2, 5.0),
    Sketcher.Constraint("DistanceY", 5, 1, 5, 2, 12.0),
    Sketcher.Constraint("Angle", 1, Q("-135 deg")),
    Sketcher.Constraint("DistanceX", 6, 2, 6, 1, 2.5),
    Sketcher.Constraint("DistanceX", 2, 2, -1, 1, 18.0),
    Sketcher.Constraint("DistanceY", 3, 2, -1, 1, 26.0),
    Sketcher.Constraint("DistanceY", 3, 2, 3, 1, 2.25),
    Sketcher.Constraint("DistanceX", 2, 2, 2, 1, 1.875),
])
groove3 = doc.addObject("PartDesign::Groove", "Groove002")
body.addObject(groove3)
groove3.Profile = sketch11
groove3.ReferenceAxis = (sketch11, ["Axis0"])
groove3.Angle = 360

# Sketch on XZ plane
sketch12 = doc.addObject("Sketcher::SketchObject", "Sketch011")
body.addObject(sketch12)
sketch12.AttachmentSupport = (doc.XZ_Plane, [""])
sketch12.MapMode = "FlatFace"
sketch12.AttachmentOffset = App.Placement(Vector(0, 0, 13), App.Rotation())
sketch12.addGeometry([
    Part.LineSegment(Vector(-15.75, 41.81, 0), Vector(-19.25, 41.81, 0)),  # 0
    Part.LineSegment(Vector(-19.25, 41.81, 0), Vector(-20, 41.06, 0)),  # 1
    Part.LineSegment(Vector(-20, 41.06, 0), Vector(-20, 37.75, 0)),  # 2
    Part.LineSegment(Vector(-20, 37.75, 0), Vector(-17.125, 37.75, 0)),  # 3
    Part.LineSegment(Vector(-17.125, 37.75, 0), Vector(-17.125, 35.307848, 0)),  # 4
    Part.LineSegment(Vector(-17.125, 35.307848, 0), Vector(-13, 35.307848, 0)),  # 5
    Part.LineSegment(Vector(-13, 35.307848, 0), Vector(-13, 35.308848, 0)),  # 6
    Part.LineSegment(Vector(-13, 35.308848, 0), Vector(-15.5, 36.811, 0)),  # 7
    Part.LineSegment(Vector(-15.5, 36.811, 0), Vector(-15.5, 41.56, 0)),  # 8
    Part.LineSegment(Vector(-15.5, 41.56, 0), Vector(-15.75, 41.81, 0)),  # 9
], False)
sketch12.addGeometry(Part.LineSegment(Vector(-13, 35.307848, 0), Vector(-13, 41.81, 0)), True)  # axis
sketch12.addConstraint([
    Sketcher.Constraint("Coincident", 0, 2, 1, 1),
    Sketcher.Constraint("Coincident", 1, 2, 2, 1),
    Sketcher.Constraint("Coincident", 2, 2, 3, 1),
    Sketcher.Constraint("Coincident", 3, 2, 4, 1),
    Sketcher.Constraint("Coincident", 4, 2, 5, 1),
    Sketcher.Constraint("Coincident", 5, 2, 6, 1),
    Sketcher.Constraint("Coincident", 6, 2, 7, 1),
    Sketcher.Constraint("Coincident", 7, 2, 8, 1),
    Sketcher.Constraint("Coincident", 8, 2, 9, 1),
    Sketcher.Constraint("Coincident", 9, 2, 0, 1),
    Sketcher.Constraint("Horizontal", 0),
    Sketcher.Constraint("Vertical", 2),
    Sketcher.Constraint("Horizontal", 3),
    Sketcher.Constraint("Vertical", 4),
    Sketcher.Constraint("Horizontal", 5),
    Sketcher.Constraint("Vertical", 6),
    Sketcher.Constraint("Vertical", 8),
    Sketcher.Constraint("Vertical", 10),
    Sketcher.Constraint("Coincident", 10, 1, 5, 2),
    Sketcher.Constraint("Perpendicular", 1, 9),
    Sketcher.Constraint("Horizontal", 9, 2, 10, 2),
    Sketcher.Constraint("Angle", 1, Q("-135 deg")),
    Sketcher.Constraint("Angle", 7, Q("149 deg")),
    Sketcher.Constraint("DistanceX", 0, 2, 0, 1, 3.5),
    Sketcher.Constraint("DistanceX", 1, 2, -1, 1, 20.0),
    Sketcher.Constraint("DistanceX", 5, 2, -1, 1, 13.0),
    Sketcher.Constraint("DistanceY", 2, 2, 2, 1, 3.31),
    Sketcher.Constraint("DistanceX", 7, 2, -1, 1, 15.5),
    Sketcher.Constraint("DistanceY", 1, 2, 8, 2, 0.5),
    Sketcher.Constraint("DistanceX", 3, 1, 3, 2, 2.875),
    Sketcher.Constraint("DistanceY", 6, 1, 6, 2, 0.001),
    Sketcher.Constraint("DistanceY", 8, 1, 8, 2, 4.749),
    Sketcher.Constraint("DistanceY", -1, 1, 0, 2, 41.81),
])
revolution5 = doc.addObject("PartDesign::Revolution", "Revolution004")
body.addObject(revolution5)
revolution5.Profile = sketch12
revolution5.ReferenceAxis = (sketch12, ["Axis0"])
revolution5.Angle = 360

# Sketch on XY plane
sketch13 = doc.addObject("Sketcher::SketchObject", "Sketch012")
body.addObject(sketch13)
sketch13.AttachmentSupport = (doc.XY_Plane, [""])
sketch13.MapMode = "FlatFace"
sketch13.AttachmentOffset = App.Placement(Vector(0, 0, 41.81), App.Rotation())
sketch13.addGeometry([
    Part.LineSegment(Vector(-10.5, -14.443376, 0), Vector(-10.5, -11.556624, 0)),  # 0
    Part.LineSegment(Vector(-10.5, -11.556624, 0), Vector(-13, -10.113249, 0)),  # 1
    Part.LineSegment(Vector(-13, -10.113249, 0), Vector(-15.5, -11.556624, 0)),  # 2
    Part.LineSegment(Vector(-15.5, -11.556624, 0), Vector(-15.5, -14.443376, 0)),  # 3
    Part.LineSegment(Vector(-15.5, -14.443376, 0), Vector(-13, -15.886751, 0)),  # 4
    Part.LineSegment(Vector(-13, -15.886751, 0), Vector(-10.5, -14.443376, 0)),  # 5
], False)
sketch13.addConstraint([
    Sketcher.Constraint("Coincident", 0, 2, 1, 1),
    Sketcher.Constraint("Coincident", 1, 2, 2, 1),
    Sketcher.Constraint("Coincident", 2, 2, 3, 1),
    Sketcher.Constraint("Coincident", 3, 2, 4, 1),
    Sketcher.Constraint("Coincident", 4, 2, 5, 1),
    Sketcher.Constraint("Coincident", 5, 2, 0, 1),
    Sketcher.Constraint("Vertical", 0),
    Sketcher.Constraint("Vertical", 3),
    Sketcher.Constraint("Parallel", 1, 4),
    Sketcher.Constraint("Parallel", 2, 5),
    Sketcher.Constraint("Horizontal", 0, 2, 2, 2),
    Sketcher.Constraint("Horizontal", 3, 2, 5, 2),
    Sketcher.Constraint("Vertical", 1, 2, 4, 2),
    Sketcher.Constraint("Angle", 1, Q("150 deg")),
    Sketcher.Constraint("DistanceX", 1, 2, -1, 1, 13.0),
    Sketcher.Constraint("DistanceX", 2, 2, 0, 2, 5.0),
    Sketcher.Constraint("DistanceY", 0, 1, 0, 2, 2.886751),
    Sketcher.Constraint("DistanceY", 1, 2, -1, 1, 10.113249),
])
pocket4 = doc.addObject("PartDesign::Pocket", "Pocket003")
body.addObject(pocket4)
pocket4.Profile = sketch13
pocket4.Length = 4.06
doc.recompute()

datumplane = doc.addObject("PartDesign::Plane", "DatumPlane")
body.addObject(datumplane)
datumplane.AttachmentSupport = (doc.XZ_Plane, [""])
datumplane.MapMode = "FlatFace"
datumplane.AttachmentOffset = App.Placement(Vector(0, 0, 13), App.Rotation())
mirrored4 = doc.addObject("PartDesign::Mirrored", "Mirrored003")
body.addObject(mirrored4)
mirrored4.Originals = [groove3]
mirrored4.MirrorPlane = (datumplane, [""])
body.Tip = mirrored4
doc.recompute()

mirrored5 = doc.addObject("PartDesign::Mirrored", "Mirrored004")
body.addObject(mirrored5)
mirrored5.Originals = [groove2, groove3, revolution5, pocket4]
mirrored5.MirrorPlane = (doc.YZ_Plane, [""])
body.Tip = mirrored5

# Sketch on XY plane
sketch14 = doc.addObject("Sketcher::SketchObject", "Sketch013")
body.addObject(sketch14)
sketch14.AttachmentSupport = (doc.XY_Plane, [""])
sketch14.MapMode = "FlatFace"
sketch14.AttachmentOffset = App.Placement(Vector(0, 0, 30), App.Rotation())
sketch14.addGeometry([
    Part.LineSegment(Vector(15.5, -12, 0), Vector(15.5, -2.875, 0)),  # 0
    Part.LineSegment(Vector(15.5, -2.875, 0), Vector(16.125, -2.25, 0)),  # 1
    Part.LineSegment(Vector(16.125, -2.25, 0), Vector(18, -2.25, 0)),  # 2
    Part.LineSegment(Vector(18, -2.25, 0), Vector(18, 0, 0)),  # 3
    Part.LineSegment(Vector(18, 0, 0), Vector(13, 0, 0)),  # 4
    Part.LineSegment(Vector(13, 0, 0), Vector(13, -12, 0)),  # 5
    Part.LineSegment(Vector(13, -12, 0), Vector(15.5, -12, 0)),  # 6
], False)
sketch14.addGeometry(Part.LineSegment(Vector(13, -12, 0), Vector(13, 0, 0)), True)  # axis
sketch14.addConstraint([
    Sketcher.Constraint("Coincident", 0, 2, 1, 1),
    Sketcher.Constraint("Coincident", 1, 2, 2, 1),
    Sketcher.Constraint("Coincident", 2, 2, 3, 1),
    Sketcher.Constraint("Coincident", 3, 2, 4, 1),
    Sketcher.Constraint("Coincident", 4, 2, 5, 1),
    Sketcher.Constraint("Coincident", 5, 2, 6, 1),
    Sketcher.Constraint("Coincident", 6, 2, 0, 1),
    Sketcher.Constraint("Vertical", 0),
    Sketcher.Constraint("Horizontal", 2),
    Sketcher.Constraint("Vertical", 3),
    Sketcher.Constraint("Horizontal", 4),
    Sketcher.Constraint("Vertical", 5),
    Sketcher.Constraint("Horizontal", 6),
    Sketcher.Constraint("Vertical", 7),
    Sketcher.Constraint("Coincident", 7, 1, 5, 2),
    Sketcher.Constraint("PointOnObject", 3, 2, -1),
    Sketcher.Constraint("PointOnObject", 7, 2, -1),
    Sketcher.Constraint("DistanceX", 4, 2, 4, 1, 5.0),
    Sketcher.Constraint("DistanceY", 5, 2, 5, 1, 12.0),
    Sketcher.Constraint("Angle", 1, Q("45 deg")),
    Sketcher.Constraint("DistanceX", 6, 1, 6, 2, 2.5),
    Sketcher.Constraint("DistanceX", -1, 1, 2, 2, 18.0),
    Sketcher.Constraint("DistanceY", 3, 1, 3, 2, 2.25),
    Sketcher.Constraint("DistanceX", 2, 1, 2, 2, 1.875),
])
groove4 = doc.addObject("PartDesign::Groove", "Groove003")
body.addObject(groove4)
groove4.Profile = sketch14
groove4.ReferenceAxis = (sketch14, ["Axis0"])
groove4.Angle = 360
body2 = doc.addObject("PartDesign::Body", "Body001")

# Sketch on XY plane
sketch15 = doc.addObject("Sketcher::SketchObject", "Sketch014")
body2.addObject(sketch15)
sketch15.AttachmentSupport = (doc.getObject("XY_Plane001"), [""])
sketch15.MapMode = "FlatFace"
sketch15.AttachmentOffset = App.Placement(Vector(0, 0, 30), App.Rotation())
sketch15.addGeometry(Part.Circle(Vector(-16.5, -25.25, 0), Vector(0, 0, 1), 1.5), False)
sketch15.addGeometry(Part.LineSegment(Vector(-13, -25.25, 0), Vector(-13, -35.25, 0)), True)  # axis
sketch15.addConstraint([
    Sketcher.Constraint("Vertical", 1),
    Sketcher.Constraint("Horizontal", 0, 3, 1, 1),
    Sketcher.Constraint("Diameter", 0, 3.0),
    Sketcher.Constraint("DistanceY", 1, 2, 1, 1, 10.0),
    Sketcher.Constraint("DistanceX", 1, 1, -1, 1, 13.0),
    Sketcher.Constraint("DistanceX", 0, 3, -1, 1, 16.5),
    Sketcher.Constraint("DistanceY", 0, 3, -1, 1, 25.25),
])
revolution6 = doc.addObject("PartDesign::Revolution", "Revolution005")
body2.addObject(revolution6)
revolution6.Profile = sketch15
revolution6.ReferenceAxis = (sketch15, ["Axis0"])
revolution6.Angle = 360
body3 = doc.addObject("PartDesign::Body", "Body002")
doc.recompute()

mirroring = doc.addObject("Part::Mirroring", "Mirroring")
mirroring.Source = body2
mirroring.Base = Vector(0, 0, 0)
mirroring.Normal = Vector(1, 0, 0)
body3.BaseFeature = mirroring
doc.recompute()
body4 = doc.addObject("PartDesign::Body", "Body003")
doc.recompute()

mirroring2 = doc.addObject("Part::Mirroring", "Mirroring001")
mirroring2.Source = body2
mirroring2.Base = Vector(0, -13, 0)
mirroring2.Normal = Vector(0, -1, 0)
body4.BaseFeature = mirroring2
doc.recompute()
body5 = doc.addObject("PartDesign::Body", "Body004")
doc.recompute()

mirroring3 = doc.addObject("Part::Mirroring", "Mirroring002")
mirroring3.Source = body3
mirroring3.Base = Vector(0, -13, 0)
mirroring3.Normal = Vector(0, -1, 0)
body5.BaseFeature = mirroring3
doc.recompute()
mirroring.Visibility = False
mirroring2.Visibility = False
mirroring3.Visibility = False

doc.recompute()
